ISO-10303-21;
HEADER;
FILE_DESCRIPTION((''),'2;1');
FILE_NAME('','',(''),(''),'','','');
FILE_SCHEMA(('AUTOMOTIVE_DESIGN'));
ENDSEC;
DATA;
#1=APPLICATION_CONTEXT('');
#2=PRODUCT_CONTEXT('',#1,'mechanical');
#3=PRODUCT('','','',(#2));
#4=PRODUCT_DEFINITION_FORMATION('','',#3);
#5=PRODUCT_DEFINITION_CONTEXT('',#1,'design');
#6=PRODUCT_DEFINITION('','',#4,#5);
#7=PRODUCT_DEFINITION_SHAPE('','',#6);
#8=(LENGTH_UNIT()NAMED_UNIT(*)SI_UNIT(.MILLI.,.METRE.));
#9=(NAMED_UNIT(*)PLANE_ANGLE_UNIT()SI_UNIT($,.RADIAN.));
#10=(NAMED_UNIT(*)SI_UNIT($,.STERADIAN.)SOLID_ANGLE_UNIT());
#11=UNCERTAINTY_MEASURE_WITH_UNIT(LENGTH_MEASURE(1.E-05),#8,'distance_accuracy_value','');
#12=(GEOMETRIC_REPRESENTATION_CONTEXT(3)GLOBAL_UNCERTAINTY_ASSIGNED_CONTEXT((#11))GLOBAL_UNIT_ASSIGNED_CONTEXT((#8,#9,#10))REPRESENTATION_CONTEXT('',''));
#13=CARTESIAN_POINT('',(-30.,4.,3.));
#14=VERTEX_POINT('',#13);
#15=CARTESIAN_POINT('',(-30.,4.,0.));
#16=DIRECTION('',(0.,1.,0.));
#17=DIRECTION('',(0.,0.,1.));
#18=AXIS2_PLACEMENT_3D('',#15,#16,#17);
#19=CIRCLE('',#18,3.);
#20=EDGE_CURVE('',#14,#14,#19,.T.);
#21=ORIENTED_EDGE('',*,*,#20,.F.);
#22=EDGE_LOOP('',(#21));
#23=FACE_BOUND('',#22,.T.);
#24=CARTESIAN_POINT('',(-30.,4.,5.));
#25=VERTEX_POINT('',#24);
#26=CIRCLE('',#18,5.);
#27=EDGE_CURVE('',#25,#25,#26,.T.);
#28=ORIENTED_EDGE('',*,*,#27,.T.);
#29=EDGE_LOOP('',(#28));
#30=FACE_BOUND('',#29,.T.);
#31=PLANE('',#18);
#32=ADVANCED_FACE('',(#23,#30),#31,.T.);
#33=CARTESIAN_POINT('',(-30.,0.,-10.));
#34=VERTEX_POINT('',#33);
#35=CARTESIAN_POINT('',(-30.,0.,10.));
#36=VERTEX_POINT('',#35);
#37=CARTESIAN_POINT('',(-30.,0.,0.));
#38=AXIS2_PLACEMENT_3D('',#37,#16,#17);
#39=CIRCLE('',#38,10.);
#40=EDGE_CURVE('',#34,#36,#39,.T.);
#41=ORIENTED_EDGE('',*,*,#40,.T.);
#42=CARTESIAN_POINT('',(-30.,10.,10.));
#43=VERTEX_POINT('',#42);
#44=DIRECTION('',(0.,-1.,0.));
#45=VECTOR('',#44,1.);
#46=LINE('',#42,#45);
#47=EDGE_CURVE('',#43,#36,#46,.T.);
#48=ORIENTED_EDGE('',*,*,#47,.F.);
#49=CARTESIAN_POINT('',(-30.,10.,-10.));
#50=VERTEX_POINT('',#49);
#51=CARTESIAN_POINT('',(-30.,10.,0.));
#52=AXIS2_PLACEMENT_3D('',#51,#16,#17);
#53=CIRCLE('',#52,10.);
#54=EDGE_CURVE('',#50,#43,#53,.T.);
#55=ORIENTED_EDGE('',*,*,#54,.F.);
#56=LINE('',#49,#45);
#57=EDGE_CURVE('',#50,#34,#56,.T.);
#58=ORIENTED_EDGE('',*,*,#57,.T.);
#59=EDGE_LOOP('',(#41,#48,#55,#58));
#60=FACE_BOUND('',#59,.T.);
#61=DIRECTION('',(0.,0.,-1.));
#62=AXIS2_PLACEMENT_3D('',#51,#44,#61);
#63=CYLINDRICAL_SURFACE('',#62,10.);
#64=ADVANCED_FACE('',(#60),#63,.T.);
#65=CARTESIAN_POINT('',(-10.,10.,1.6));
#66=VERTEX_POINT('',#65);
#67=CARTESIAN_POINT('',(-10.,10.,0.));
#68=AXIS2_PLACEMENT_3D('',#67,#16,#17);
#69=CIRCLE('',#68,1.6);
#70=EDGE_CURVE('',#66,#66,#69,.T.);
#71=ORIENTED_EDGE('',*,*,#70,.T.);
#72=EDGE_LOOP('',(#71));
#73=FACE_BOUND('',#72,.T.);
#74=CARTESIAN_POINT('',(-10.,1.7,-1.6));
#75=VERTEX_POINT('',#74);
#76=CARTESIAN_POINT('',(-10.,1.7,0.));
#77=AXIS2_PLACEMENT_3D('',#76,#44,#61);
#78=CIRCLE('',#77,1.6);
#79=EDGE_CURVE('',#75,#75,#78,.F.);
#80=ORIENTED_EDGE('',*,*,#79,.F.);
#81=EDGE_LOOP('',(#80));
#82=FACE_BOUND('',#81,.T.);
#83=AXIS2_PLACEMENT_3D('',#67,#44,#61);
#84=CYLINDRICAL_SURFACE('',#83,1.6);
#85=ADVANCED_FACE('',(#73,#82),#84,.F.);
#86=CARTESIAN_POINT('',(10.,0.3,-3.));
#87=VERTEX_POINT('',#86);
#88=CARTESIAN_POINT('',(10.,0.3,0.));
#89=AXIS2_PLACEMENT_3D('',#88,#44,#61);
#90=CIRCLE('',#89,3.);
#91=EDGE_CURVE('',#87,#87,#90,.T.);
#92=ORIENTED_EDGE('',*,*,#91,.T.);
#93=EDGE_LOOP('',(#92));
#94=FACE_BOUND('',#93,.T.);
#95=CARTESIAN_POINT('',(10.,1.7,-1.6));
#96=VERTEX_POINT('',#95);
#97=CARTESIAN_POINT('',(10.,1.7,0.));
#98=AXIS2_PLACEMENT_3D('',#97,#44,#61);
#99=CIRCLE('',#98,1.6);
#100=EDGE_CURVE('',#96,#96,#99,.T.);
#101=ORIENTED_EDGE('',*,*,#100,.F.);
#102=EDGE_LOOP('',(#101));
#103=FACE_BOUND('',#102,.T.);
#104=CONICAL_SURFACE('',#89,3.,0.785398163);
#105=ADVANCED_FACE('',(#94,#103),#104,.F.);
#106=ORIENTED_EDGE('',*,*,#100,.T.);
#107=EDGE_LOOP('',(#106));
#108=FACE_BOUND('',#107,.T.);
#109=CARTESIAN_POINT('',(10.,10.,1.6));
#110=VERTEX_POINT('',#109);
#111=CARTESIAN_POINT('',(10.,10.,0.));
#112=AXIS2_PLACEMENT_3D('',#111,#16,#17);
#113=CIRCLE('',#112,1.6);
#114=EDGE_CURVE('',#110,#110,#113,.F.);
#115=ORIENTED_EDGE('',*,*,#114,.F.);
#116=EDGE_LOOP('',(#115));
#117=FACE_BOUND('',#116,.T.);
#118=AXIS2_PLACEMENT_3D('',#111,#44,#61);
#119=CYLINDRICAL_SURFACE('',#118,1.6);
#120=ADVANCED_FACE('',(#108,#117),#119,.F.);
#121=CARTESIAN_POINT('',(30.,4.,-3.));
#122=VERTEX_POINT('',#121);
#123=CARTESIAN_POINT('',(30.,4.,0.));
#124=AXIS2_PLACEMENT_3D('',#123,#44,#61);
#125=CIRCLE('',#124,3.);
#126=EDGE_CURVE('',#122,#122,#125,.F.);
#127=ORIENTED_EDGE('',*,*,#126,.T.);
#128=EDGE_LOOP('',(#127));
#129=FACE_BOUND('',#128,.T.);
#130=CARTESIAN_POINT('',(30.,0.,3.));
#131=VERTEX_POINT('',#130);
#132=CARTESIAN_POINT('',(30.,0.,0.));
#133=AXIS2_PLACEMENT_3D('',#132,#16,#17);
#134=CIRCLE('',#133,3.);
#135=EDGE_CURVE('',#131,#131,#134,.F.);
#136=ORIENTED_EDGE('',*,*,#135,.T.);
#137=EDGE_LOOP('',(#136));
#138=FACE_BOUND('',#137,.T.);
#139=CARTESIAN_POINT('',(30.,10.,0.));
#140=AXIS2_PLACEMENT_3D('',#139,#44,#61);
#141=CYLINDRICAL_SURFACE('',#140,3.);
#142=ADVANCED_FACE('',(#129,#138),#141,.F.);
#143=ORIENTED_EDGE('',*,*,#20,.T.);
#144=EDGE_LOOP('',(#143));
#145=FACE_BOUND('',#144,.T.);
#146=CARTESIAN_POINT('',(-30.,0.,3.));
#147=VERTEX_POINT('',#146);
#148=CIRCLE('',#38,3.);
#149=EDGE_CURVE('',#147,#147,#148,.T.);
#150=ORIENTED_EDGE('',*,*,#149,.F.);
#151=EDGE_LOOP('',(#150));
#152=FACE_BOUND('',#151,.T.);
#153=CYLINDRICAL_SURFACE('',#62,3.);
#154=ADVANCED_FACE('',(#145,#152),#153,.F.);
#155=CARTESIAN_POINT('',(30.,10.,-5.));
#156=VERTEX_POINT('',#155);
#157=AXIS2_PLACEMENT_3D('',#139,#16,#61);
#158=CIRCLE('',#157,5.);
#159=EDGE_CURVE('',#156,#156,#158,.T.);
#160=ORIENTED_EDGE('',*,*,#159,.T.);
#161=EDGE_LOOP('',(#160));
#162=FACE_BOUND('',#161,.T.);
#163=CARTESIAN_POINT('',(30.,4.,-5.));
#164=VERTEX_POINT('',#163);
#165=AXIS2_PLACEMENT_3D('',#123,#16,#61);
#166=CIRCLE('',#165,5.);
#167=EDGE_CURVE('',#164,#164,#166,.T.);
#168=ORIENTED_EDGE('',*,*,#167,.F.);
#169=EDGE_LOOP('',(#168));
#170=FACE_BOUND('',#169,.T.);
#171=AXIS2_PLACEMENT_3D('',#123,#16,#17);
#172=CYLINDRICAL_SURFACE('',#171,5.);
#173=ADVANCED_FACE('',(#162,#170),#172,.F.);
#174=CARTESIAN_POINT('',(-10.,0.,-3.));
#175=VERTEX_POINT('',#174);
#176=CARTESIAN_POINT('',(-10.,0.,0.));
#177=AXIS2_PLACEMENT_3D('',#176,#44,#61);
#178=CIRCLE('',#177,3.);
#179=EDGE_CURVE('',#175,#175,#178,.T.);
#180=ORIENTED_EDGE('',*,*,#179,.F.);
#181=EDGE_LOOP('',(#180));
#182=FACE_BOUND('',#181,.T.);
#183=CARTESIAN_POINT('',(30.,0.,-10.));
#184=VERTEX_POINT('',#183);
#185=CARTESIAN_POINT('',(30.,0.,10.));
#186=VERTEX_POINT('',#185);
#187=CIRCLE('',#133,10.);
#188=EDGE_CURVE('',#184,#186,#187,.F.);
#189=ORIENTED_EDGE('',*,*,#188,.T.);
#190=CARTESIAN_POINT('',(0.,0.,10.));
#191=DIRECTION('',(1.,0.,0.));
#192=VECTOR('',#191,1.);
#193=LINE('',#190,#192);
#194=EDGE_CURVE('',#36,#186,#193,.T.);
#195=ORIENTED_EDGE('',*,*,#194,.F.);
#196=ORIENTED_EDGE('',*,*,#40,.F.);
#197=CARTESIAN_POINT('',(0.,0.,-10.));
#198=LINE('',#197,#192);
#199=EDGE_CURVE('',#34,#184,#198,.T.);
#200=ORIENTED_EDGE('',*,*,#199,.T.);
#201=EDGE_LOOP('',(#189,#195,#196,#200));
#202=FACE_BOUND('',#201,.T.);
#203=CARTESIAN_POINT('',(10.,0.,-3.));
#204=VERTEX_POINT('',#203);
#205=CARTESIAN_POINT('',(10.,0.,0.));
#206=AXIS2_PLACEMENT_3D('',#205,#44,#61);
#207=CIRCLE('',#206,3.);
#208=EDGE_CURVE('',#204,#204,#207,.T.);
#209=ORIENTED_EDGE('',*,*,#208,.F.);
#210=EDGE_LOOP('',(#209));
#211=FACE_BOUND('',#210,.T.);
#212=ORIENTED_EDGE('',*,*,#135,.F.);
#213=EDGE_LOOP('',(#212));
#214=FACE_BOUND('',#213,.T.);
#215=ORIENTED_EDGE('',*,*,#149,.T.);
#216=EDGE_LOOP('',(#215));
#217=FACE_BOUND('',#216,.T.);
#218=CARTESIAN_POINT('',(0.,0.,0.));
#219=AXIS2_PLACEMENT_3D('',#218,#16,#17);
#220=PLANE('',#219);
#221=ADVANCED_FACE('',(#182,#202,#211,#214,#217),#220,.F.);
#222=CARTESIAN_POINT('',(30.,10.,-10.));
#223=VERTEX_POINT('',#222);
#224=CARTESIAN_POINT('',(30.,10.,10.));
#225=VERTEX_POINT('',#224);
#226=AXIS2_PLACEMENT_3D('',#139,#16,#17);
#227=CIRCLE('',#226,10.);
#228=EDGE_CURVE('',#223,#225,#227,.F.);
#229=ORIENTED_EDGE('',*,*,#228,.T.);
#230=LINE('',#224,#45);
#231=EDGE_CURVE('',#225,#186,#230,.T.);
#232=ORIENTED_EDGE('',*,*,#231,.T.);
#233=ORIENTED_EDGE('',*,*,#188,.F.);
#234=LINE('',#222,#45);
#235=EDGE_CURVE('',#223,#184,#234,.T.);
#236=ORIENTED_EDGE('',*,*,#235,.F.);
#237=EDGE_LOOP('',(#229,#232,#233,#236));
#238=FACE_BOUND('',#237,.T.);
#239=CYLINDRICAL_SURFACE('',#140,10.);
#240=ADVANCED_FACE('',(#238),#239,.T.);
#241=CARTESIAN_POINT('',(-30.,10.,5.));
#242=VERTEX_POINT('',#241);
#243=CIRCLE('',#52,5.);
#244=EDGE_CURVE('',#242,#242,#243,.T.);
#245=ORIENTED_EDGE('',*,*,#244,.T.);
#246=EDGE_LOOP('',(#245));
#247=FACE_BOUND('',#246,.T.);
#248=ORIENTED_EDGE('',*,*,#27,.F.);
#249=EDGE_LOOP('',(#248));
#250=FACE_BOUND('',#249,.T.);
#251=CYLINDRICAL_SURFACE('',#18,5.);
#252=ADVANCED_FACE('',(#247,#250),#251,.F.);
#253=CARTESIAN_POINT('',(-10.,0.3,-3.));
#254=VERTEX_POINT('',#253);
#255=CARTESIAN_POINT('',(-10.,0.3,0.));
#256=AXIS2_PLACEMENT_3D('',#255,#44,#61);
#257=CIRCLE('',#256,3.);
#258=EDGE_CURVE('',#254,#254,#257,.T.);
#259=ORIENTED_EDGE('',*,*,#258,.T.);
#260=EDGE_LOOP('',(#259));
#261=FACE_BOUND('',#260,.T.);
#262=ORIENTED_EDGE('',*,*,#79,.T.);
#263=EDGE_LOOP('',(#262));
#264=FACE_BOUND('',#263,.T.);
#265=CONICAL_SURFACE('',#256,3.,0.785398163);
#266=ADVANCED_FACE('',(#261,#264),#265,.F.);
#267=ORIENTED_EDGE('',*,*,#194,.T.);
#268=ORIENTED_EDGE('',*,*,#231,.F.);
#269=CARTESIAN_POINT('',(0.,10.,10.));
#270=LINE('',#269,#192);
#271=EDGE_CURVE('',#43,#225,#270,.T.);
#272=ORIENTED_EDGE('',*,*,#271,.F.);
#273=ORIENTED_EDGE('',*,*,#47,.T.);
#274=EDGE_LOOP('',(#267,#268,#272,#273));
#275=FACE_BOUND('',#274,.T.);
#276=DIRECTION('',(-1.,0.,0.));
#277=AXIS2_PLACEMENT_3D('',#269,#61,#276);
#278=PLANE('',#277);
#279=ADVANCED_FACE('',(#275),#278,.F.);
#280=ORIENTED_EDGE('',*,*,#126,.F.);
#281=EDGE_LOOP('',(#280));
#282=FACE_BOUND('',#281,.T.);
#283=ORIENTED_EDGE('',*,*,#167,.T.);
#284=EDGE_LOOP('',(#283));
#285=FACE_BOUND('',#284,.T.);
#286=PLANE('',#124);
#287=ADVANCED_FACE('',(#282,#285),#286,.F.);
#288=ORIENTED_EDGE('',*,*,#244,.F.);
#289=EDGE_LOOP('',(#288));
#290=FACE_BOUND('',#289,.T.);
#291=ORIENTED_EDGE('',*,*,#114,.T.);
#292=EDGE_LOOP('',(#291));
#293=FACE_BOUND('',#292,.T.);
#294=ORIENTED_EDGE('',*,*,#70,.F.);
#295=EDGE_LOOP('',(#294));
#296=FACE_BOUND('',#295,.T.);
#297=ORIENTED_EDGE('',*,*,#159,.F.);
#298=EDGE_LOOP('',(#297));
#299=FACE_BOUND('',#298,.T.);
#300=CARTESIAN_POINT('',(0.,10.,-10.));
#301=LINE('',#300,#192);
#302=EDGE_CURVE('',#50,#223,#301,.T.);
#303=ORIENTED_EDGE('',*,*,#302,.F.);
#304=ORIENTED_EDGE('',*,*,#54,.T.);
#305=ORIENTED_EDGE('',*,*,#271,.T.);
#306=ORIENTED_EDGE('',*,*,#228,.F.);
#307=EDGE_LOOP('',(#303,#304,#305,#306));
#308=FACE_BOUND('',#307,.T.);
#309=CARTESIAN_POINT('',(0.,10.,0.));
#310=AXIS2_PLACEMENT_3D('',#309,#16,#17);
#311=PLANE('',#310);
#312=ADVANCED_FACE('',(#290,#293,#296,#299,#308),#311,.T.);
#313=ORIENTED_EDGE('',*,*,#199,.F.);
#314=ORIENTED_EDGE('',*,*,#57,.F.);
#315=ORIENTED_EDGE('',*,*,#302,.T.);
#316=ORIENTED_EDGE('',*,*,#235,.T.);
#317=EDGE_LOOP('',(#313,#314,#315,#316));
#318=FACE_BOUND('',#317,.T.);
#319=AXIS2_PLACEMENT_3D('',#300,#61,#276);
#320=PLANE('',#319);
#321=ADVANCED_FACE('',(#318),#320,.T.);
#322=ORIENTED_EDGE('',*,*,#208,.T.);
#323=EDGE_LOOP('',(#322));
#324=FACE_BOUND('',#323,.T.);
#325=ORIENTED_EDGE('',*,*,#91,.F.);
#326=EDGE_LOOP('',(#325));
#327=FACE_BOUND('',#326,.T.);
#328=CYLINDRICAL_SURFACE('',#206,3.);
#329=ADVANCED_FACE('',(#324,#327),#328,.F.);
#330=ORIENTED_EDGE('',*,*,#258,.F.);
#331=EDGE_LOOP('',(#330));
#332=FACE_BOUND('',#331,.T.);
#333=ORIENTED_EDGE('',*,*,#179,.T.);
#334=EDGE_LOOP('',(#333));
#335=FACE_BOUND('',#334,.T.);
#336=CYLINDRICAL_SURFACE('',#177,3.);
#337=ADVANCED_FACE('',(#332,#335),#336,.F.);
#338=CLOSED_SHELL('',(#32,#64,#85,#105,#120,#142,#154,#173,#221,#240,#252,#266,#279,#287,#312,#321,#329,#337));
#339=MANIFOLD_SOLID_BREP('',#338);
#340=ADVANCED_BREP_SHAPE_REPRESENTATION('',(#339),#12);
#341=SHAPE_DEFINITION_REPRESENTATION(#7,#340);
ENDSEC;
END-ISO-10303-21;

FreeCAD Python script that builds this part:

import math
import FreeCAD as App
import Part
import Sketcher

V = App.Vector
Q = App.Units.Quantity


def add_polygon(sketch, points):
    """Adds a closed chain of lines whose ends are joined by coincident constraints."""
    first, n = sketch.GeometryCount, len(points)
    for a, b in zip(points, points[1:] + points[:1]):
        sketch.addGeometry(Part.LineSegment(App.Vector(*a, 0), App.Vector(*b, 0)), False)
    for i in range(n):
        sketch.addConstraint(Sketcher.Constraint("Coincident", first + i, 2, first + (i + 1) % n, 1))

doc = App.newDocument("Part")
body = doc.addObject("PartDesign::Body", "Body")

# Sketch on XZ plane
sketch1 = body.newObject("Sketcher::SketchObject", "Sketch")
sketch1.AttachmentSupport = (doc.getObject("XZ_Plane"), [""])
sketch1.MapMode = "FlatFace"
sketch1.addGeometry([
    Part.ArcOfCircle(Part.Circle(V(-30, 0, 0), V(0, 0, 1), 10), math.radians(90), math.radians(270)),  # 0
    Part.LineSegment(V(-30, 10, 0), V(30, 10, 0)),  # 1
    Part.ArcOfCircle(Part.Circle(V(30, 0, 0), V(0, 0, 1), 10), math.radians(-90), math.radians(90)),  # 2
    Part.LineSegment(V(30, -10, 0), V(-30, -10, 0)),  # 3
    Part.Circle(V(-30, 0, 0), V(0, 0, 1), 3),  # 4
    Part.Circle(V(-10, 0, 0), V(0, 0, 1), 1.6),  # 5
    Part.Circle(V(10, 0, 0), V(0, 0, 1), 1.6),  # 6
    Part.Circle(V(30, 0, 0), V(0, 0, 1), 3),  # 7
], False)
sketch1.addConstraint([
    Sketcher.Constraint("Tangent", 0, 1, 1, 1),
    Sketcher.Constraint("Tangent", 1, 2, 2, 2),
    Sketcher.Constraint("Tangent", 2, 1, 3, 1),
    Sketcher.Constraint("Tangent", 3, 2, 0, 2),
    Sketcher.Constraint("Horizontal", 1),
    Sketcher.Constraint("Horizontal", 3),
    Sketcher.Constraint("Coincident", 4, 3, 0, 3),
    Sketcher.Constraint("Coincident", 7, 3, 2, 3),
    Sketcher.Constraint("Equal", 5, 6),
    Sketcher.Constraint("Equal", 4, 7),
    Sketcher.Constraint("Symmetric", 0, 3, 2, 3, -1, 1),
    Sketcher.Constraint("Symmetric", 5, 3, 6, 3, -1, 1),
    Sketcher.Constraint("PointOnObject", 5, 3, -1),
    Sketcher.Constraint("Diameter", 4, 6.0),
    Sketcher.Constraint("Radius", 0, 10.0),
    Sketcher.Constraint("Diameter", 5, 3.2),
    Sketcher.Constraint("DistanceX", 1, 1, 1, 2, 60.0),
    Sketcher.Constraint("DistanceX", 5, 3, -1, 1, 10.0),
])
pad1 = body.newObject("PartDesign::Pad", "Pad")
pad1.Profile = sketch1
pad1.Length = 10
pad1.Reversed = True

# Sketch on XZ plane
sketch2 = body.newObject("Sketcher::SketchObject", "Sketch001")
sketch2.AttachmentSupport = (doc.getObject("XZ_Plane"), [""])
sketch2.MapMode = "FlatFace"
sketch2.AttachmentOffset = App.Placement(V(0, 0, -10), App.Rotation())
sketch2.addGeometry([
    Part.Circle(V(-30, 0, 0), V(0, 0, 1), 5),
    Part.Circle(V(30, 0, 0), V(0, 0, 1), 5),
], False)
sketch2.addConstraint([
    Sketcher.Constraint("Equal", 0, 1),
    Sketcher.Constraint("Symmetric", 0, 3, 1, 3, -1, 1),
    Sketcher.Constraint("PointOnObject", 0, 3, -1),
    Sketcher.Constraint("Diameter", 0, 10.0),
    Sketcher.Constraint("DistanceX", 0, 3, -1, 1, 30.0),
])
pocket1 = body.newObject("PartDesign::Pocket", "Pocket")
pocket1.Profile = sketch2
pocket1.Length = 6
pocket1.Reversed = True

# Sketch on YZ plane
sketch3 = body.newObject("Sketcher::SketchObject", "Sketch002")
sketch3.AttachmentSupport = (doc.getObject("YZ_Plane"), [""])
sketch3.MapMode = "FlatFace"
sketch3.AttachmentOffset = App.Placement(V(0, 0, -10), App.Rotation())
add_polygon(sketch3, [(10, 0), (0, 0), (0, -3), (0.3, -3), (1.8, -1.5), (10, -1.5)])  # lines 0-5
sketch3.addConstraint([
    Sketcher.Constraint("Horizontal", 0),
    Sketcher.Constraint("Vertical", 1),
    Sketcher.Constraint("Horizontal", 2),
    Sketcher.Constraint("Horizontal", 4),
    Sketcher.Constraint("Vertical", 5),
    Sketcher.Constraint("Coincident", 0, 2, -1, 1),
    Sketcher.Constraint("DistanceX", 0, 2, 0, 1, 10.0),
    Sketcher.Constraint("DistanceY", 1, 2, 1, 1, 3.0),
    Sketcher.Constraint("Angle", 3, Q("45 deg")),
    Sketcher.Constraint("DistanceX", 2, 1, 2, 2, 0.3),
    Sketcher.Constraint("DistanceX", 4, 1, 4, 2, 8.2),
])
groove = body.newObject("PartDesign::Groove", "Groove")
groove.Profile = sketch3
groove.ReferenceAxis = (sketch3, ["H_Axis"])
groove.Angle = 360
doc.recompute()

linearpattern = body.newObject("PartDesign::LinearPattern", "LinearPattern")
linearpattern.Originals = [groove]
linearpattern.Direction = (doc.getObject("X_Axis"), [""])
linearpattern.Mode = "offset"
linearpattern.Offset = 20
linearpattern.Occurrences = 2
body.Tip = linearpattern

doc.recompute()
